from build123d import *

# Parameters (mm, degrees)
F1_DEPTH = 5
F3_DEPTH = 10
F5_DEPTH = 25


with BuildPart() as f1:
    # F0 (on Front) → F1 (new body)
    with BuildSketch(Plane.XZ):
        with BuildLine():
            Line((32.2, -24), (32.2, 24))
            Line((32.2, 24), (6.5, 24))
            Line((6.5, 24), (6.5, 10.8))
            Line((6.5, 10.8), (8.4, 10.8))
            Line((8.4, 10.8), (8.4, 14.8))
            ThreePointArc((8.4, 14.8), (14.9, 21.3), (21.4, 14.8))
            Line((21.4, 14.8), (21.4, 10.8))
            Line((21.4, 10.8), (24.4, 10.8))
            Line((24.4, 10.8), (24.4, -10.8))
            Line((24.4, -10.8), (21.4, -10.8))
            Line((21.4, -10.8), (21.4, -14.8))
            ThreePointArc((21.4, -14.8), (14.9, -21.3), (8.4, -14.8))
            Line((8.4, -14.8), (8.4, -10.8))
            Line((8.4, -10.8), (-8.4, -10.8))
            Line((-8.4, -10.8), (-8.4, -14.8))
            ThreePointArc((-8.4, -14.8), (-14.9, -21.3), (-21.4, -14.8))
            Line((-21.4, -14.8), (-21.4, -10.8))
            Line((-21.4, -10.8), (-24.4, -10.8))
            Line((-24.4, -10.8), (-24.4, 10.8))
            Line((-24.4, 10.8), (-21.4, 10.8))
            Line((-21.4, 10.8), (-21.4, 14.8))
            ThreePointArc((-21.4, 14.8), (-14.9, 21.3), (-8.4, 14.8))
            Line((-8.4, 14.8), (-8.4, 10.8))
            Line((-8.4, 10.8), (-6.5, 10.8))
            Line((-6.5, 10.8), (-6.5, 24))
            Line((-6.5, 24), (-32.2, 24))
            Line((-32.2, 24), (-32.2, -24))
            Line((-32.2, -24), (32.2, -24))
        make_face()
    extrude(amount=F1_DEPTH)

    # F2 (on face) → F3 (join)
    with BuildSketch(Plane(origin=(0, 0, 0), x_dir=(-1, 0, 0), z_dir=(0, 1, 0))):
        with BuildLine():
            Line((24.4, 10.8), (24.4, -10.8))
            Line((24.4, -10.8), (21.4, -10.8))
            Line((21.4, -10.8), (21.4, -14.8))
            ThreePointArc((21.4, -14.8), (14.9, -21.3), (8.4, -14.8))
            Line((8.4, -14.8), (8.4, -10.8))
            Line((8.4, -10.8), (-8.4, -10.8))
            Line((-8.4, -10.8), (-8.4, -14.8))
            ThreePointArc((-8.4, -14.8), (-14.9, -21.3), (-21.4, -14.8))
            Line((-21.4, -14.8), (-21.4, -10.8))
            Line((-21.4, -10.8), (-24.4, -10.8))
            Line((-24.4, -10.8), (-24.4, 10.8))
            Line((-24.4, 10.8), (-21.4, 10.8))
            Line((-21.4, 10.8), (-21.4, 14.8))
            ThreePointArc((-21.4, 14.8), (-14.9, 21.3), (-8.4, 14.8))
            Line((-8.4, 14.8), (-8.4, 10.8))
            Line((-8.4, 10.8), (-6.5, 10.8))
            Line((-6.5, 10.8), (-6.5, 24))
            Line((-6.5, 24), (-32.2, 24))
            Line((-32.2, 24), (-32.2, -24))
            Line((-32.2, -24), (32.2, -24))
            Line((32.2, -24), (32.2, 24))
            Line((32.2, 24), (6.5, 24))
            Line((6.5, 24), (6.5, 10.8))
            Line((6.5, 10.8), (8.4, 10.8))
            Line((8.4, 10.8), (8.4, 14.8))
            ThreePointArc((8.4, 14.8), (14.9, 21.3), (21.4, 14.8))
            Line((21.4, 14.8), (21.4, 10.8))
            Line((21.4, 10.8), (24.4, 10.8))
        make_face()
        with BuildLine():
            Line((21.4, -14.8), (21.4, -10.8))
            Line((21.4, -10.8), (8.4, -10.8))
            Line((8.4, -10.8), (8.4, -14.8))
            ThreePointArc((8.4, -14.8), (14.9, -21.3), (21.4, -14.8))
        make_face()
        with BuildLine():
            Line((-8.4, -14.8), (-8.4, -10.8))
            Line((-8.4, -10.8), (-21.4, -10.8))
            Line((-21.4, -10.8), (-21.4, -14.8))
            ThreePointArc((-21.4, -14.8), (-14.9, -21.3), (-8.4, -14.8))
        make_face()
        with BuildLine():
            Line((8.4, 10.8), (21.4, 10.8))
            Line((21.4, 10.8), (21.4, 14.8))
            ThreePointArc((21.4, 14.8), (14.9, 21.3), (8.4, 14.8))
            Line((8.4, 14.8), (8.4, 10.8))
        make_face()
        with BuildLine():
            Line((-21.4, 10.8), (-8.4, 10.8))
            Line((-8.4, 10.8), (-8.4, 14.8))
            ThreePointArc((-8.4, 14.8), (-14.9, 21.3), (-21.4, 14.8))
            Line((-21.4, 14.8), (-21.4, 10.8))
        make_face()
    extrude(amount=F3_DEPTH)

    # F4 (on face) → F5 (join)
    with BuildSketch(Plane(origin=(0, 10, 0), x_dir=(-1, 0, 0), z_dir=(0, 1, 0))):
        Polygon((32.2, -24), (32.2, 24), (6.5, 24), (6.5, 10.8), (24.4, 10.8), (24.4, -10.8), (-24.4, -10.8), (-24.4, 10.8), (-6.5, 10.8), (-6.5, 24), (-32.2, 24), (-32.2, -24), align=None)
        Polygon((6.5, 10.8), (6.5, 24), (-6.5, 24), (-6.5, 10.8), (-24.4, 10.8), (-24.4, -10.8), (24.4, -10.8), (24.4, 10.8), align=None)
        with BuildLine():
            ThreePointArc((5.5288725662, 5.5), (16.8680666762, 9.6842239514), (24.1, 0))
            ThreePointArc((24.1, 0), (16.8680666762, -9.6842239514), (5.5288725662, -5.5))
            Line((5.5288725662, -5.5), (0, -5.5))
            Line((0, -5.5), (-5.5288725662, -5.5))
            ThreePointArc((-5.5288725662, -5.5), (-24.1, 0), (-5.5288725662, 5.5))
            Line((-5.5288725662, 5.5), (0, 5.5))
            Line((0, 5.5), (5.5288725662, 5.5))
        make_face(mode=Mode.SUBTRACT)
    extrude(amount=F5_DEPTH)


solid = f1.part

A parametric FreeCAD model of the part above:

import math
import FreeCAD as App
import Part
import Sketcher

V = App.Vector


def add_polygon(sketch, points):
    """Adds a closed chain of lines whose ends are joined by coincident constraints."""
    first, n = sketch.GeometryCount, len(points)
    for a, b in zip(points, points[1:] + points[:1]):
        sketch.addGeometry(Part.LineSegment(App.Vector(*a, 0), App.Vector(*b, 0)), False)
    for i in range(n):
        sketch.addConstraint(Sketcher.Constraint("Coincident", first + i, 2, first + (i + 1) % n, 1))

doc = App.newDocument("Part")
body = doc.addObject("PartDesign::Body", "Body")

# Sketch on XZ plane
sketch1 = doc.addObject("Sketcher::SketchObject", "Sketch")
body.addObject(sketch1)
sketch1.AttachmentSupport = (doc.XZ_Plane, [""])
sketch1.MapMode = "FlatFace"
sketch1.addGeometry([
    Part.LineSegment(V(32.2, -24, 0), V(32.2, 24, 0)),  # 0
    Part.LineSegment(V(32.2, 24, 0), V(6.5, 24, 0)),  # 1
    Part.LineSegment(V(6.5, 24, 0), V(6.5, 10.8, 0)),  # 2
    Part.LineSegment(V(6.5, 10.8, 0), V(8.4, 10.8, 0)),  # 3
    Part.LineSegment(V(8.4, 10.8, 0), V(8.4, 14.8, 0)),  # 4
    Part.ArcOfCircle(Part.Circle(V(14.9, 14.8, 0), V(0, 0, 1), 6.5), math.radians(0), math.radians(180)),  # 5
    Part.LineSegment(V(21.4, 14.8, 0), V(21.4, 10.8, 0)),  # 6
    Part.LineSegment(V(21.4, 10.8, 0), V(24.4, 10.8, 0)),  # 7
    Part.LineSegment(V(24.4, 10.8, 0), V(24.4, -10.8, 0)),  # 8
    Part.LineSegment(V(24.4, -10.8, 0), V(21.4, -10.8, 0)),  # 9
    Part.LineSegment(V(21.4, -10.8, 0), V(21.4, -14.8, 0)),  # 10
    Part.ArcOfCircle(Part.Circle(V(14.9, -14.8, 0), V(0, 0, 1), 6.5), math.radians(180), math.radians(360)),  # 11
    Part.LineSegment(V(8.4, -14.8, 0), V(8.4, -10.8, 0)),  # 12
    Part.LineSegment(V(8.4, -10.8, 0), V(-8.4, -10.8, 0)),  # 13
    Part.LineSegment(V(-8.4, -10.8, 0), V(-8.4, -14.8, 0)),  # 14
    Part.ArcOfCircle(Part.Circle(V(-14.9, -14.8, 0), V(0, 0, 1), 6.5), math.radians(180), math.radians(360)),  # 15
    Part.LineSegment(V(-21.4, -14.8, 0), V(-21.4, -10.8, 0)),  # 16
    Part.LineSegment(V(-21.4, -10.8, 0), V(-24.4, -10.8, 0)),  # 17
    Part.LineSegment(V(-24.4, -10.8, 0), V(-24.4, 10.8, 0)),  # 18
    Part.LineSegment(V(-24.4, 10.8, 0), V(-21.4, 10.8, 0)),  # 19
    Part.LineSegment(V(-21.4, 10.8, 0), V(-21.4, 14.8, 0)),  # 20
    Part.ArcOfCircle(Part.Circle(V(-14.9, 14.8, 0), V(0, 0, 1), 6.5), math.radians(0), math.radians(180)),  # 21
    Part.LineSegment(V(-8.4, 14.8, 0), V(-8.4, 10.8, 0)),  # 22
    Part.LineSegment(V(-8.4, 10.8, 0), V(-6.5, 10.8, 0)),  # 23
    Part.LineSegment(V(-6.5, 10.8, 0), V(-6.5, 24, 0)),  # 24
    Part.LineSegment(V(-6.5, 24, 0), V(-32.2, 24, 0)),  # 25
    Part.LineSegment(V(-32.2, 24, 0), V(-32.2, -24, 0)),  # 26
    Part.LineSegment(V(-32.2, -24, 0), V(32.2, -24, 0)),  # 27
], False)
sketch1.addConstraint([
    Sketcher.Constraint("Coincident", 0, 2, 1, 1),
    Sketcher.Constraint("Coincident", 1, 2, 2, 1),
    Sketcher.Constraint("Coincident", 2, 2, 3, 1),
    Sketcher.Constraint("Coincident", 3, 2, 4, 1),
    Sketcher.Constraint("Tangent", 4, 2, 5, 2),
    Sketcher.Constraint("Tangent", 5, 1, 6, 1),
    Sketcher.Constraint("Coincident", 6, 2, 7, 1),
    Sketcher.Constraint("Coincident", 7, 2, 8, 1),
    Sketcher.Constraint("Coincident", 8, 2, 9, 1),
    Sketcher.Constraint("Coincident", 9, 2, 10, 1),
    Sketcher.Constraint("Tangent", 10, 2, 11, 2),
    Sketcher.Constraint("Tangent", 11, 1, 12, 1),
    Sketcher.Constraint("Coincident", 12, 2, 13, 1),
    Sketcher.Constraint("Coincident", 13, 2, 14, 1),
    Sketcher.Constraint("Tangent", 14, 2, 15, 2),
    Sketcher.Constraint("Tangent", 15, 1, 16, 1),
    Sketcher.Constraint("Coincident", 16, 2, 17, 1),
    Sketcher.Constraint("Coincident", 17, 2, 18, 1),
    Sketcher.Constraint("Coincident", 18, 2, 19, 1),
    Sketcher.Constraint("Coincident", 19, 2, 20, 1),
    Sketcher.Constraint("Tangent", 20, 2, 21, 2),
    Sketcher.Constraint("Tangent", 21, 1, 22, 1),
    Sketcher.Constraint("Coincident", 22, 2, 23, 1),
    Sketcher.Constraint("Coincident", 23, 2, 24, 1),
    Sketcher.Constraint("Coincident", 24, 2, 25, 1),
    Sketcher.Constraint("Coincident", 25, 2, 26, 1),
    Sketcher.Constraint("Coincident", 26, 2, 27, 1),
    Sketcher.Constraint("Coincident", 27, 2, 0, 1),
    Sketcher.Constraint("Vertical", 0),
    Sketcher.Constraint("Horizontal", 1),
    Sketcher.Constraint("Vertical", 2),
    Sketcher.Constraint("Horizontal", 3),
    Sketcher.Constraint("Vertical", 4),
    Sketcher.Constraint("Vertical", 6),
    Sketcher.Constraint("Horizontal", 7),
    Sketcher.Constraint("Vertical", 8),
    Sketcher.Constraint("Horizontal", 9),
    Sketcher.Constraint("Vertical", 10),
    Sketcher.Constraint("Vertical", 12),
    Sketcher.Constraint("Horizontal", 13),
    Sketcher.Constraint("Vertical", 14),
    Sketcher.Constraint("Vertical", 16),
    Sketcher.Constraint("Horizontal", 17),
    Sketcher.Constraint("Vertical", 18),
    Sketcher.Constraint("Horizontal", 19),
    Sketcher.Constraint("Vertical", 20),
    Sketcher.Constraint("Vertical", 22),
    Sketcher.Constraint("Horizontal", 23),
    Sketcher.Constraint("Vertical", 24),
    Sketcher.Constraint("Horizontal", 25),
    Sketcher.Constraint("Vertical", 26),
    Sketcher.Constraint("Horizontal", 27),
    Sketcher.Constraint("Equal", 5, 11),
    Sketcher.Constraint("Equal", 11, 15),
    Sketcher.Constraint("Equal", 15, 21),
    Sketcher.Constraint("Symmetric", 5, 3, 15, 3, -1, 1),
    Sketcher.Constraint("Symmetric", 11, 3, 21, 3, -1, 1),
    Sketcher.Constraint("Symmetric", 7, 2, 17, 2, -1, 1),
    Sketcher.Constraint("Symmetric", 0, 2, 26, 2, -1, 1),
    Sketcher.Constraint("Symmetric", 11, 3, 15, 3, -2),
    Sketcher.Constraint("Symmetric", 2, 2, 23, 2, -2),
    Sketcher.Constraint("Horizontal", 3, 2, 6, 2),
    Sketcher.Constraint("Horizontal", 9, 2, 12, 2),
    Sketcher.Constraint("Horizontal", 13, 2, 16, 2),
    Sketcher.Constraint("Horizontal", 7, 2, 18, 2),
    Sketcher.Constraint("Horizontal", 1, 2, 24, 2),
    Sketcher.Constraint("Radius", 5, 6.5),
    Sketcher.Constraint("DistanceX", 7, 1, 7, 2, 3.0),
    Sketcher.Constraint("DistanceY", 0, 1, 0, 2, 48.0),
    Sketcher.Constraint("DistanceY", 4, 1, 4, 2, 4.0),
    Sketcher.Constraint("DistanceX", 1, 2, 1, 1, 25.7),
    Sketcher.Constraint("DistanceX", 3, 1, 3, 2, 1.9),
    Sketcher.Constraint("DistanceX", 13, 2, 13, 1, 16.8),
    Sketcher.Constraint("DistanceY", 2, 2, 2, 1, 13.2),
])
pad1 = doc.addObject("PartDesign::Pad", "Pad")
body.addObject(pad1)
pad1.Profile = sketch1
pad1.Length = 5

# Sketch on XZ plane
sketch2 = doc.addObject("Sketcher::SketchObject", "Sketch001")
body.addObject(sketch2)
sketch2.AttachmentSupport = (doc.XZ_Plane, [""])
sketch2.MapMode = "FlatFace"
add_polygon(sketch2, [(-24.4, 10.8), (-24.4, -10.8), (24.4, -10.8), (24.4, 10.8), (6.5, 10.8), (6.5, 24), (32.2, 24), (32.2, -24), (-32.2, -24), (-32.2, 24), (-6.5, 24), (-6.5, 10.8)])  # lines 0-11
sketch2.addConstraint([
    Sketcher.Constraint("Vertical", 0),
    Sketcher.Constraint("Horizontal", 1),
    Sketcher.Constraint("Vertical", 2),
    Sketcher.Constraint("Horizontal", 3),
    Sketcher.Constraint("Vertical", 4),
    Sketcher.Constraint("Horizontal", 5),
    Sketcher.Constraint("Vertical", 6),
    Sketcher.Constraint("Horizontal", 7),
    Sketcher.Constraint("Vertical", 8),
    Sketcher.Constraint("Horizontal", 9),
    Sketcher.Constraint("Vertical", 10),
    Sketcher.Constraint("Horizontal", 11),
    Sketcher.Constraint("Symmetric", 0, 2, 2, 2, -1, 1),
    Sketcher.Constraint("Symmetric", 5, 2, 7, 2, -1, 1),
    Sketcher.Constraint("Symmetric", 4, 2, 9, 2, -2),
    Sketcher.Constraint("Horizontal", 3, 2, 10, 2),
    Sketcher.Constraint("DistanceY", 6, 2, 6, 1, 48.0),
    Sketcher.Constraint("DistanceX", 1, 1, 1, 2, 48.8),
    Sketcher.Constraint("DistanceX", 3, 2, 3, 1, 17.9),
    Sketcher.Constraint("DistanceX", 5, 1, 5, 2, 25.7),
    Sketcher.Constraint("DistanceY", 0, 2, 0, 1, 21.6),
])
pad2 = doc.addObject("PartDesign::Pad", "Pad001")
body.addObject(pad2)
pad2.Profile = sketch2
pad2.Length = 10
pad2.Reversed = True

# Sketch on XZ plane
sketch3 = doc.addObject("Sketcher::SketchObject", "Sketch002")
body.addObject(sketch3)
sketch3.AttachmentSupport = (doc.XZ_Plane, [""])
sketch3.MapMode = "FlatFace"
sketch3.AttachmentOffset = App.Placement(V(0, 0, -10), App.Rotation())
add_polygon(sketch3, [(-32.2, -24), (-32.2, 24), (32.2, 24), (32.2, -24)])  # lines 0-3
sketch3.addGeometry(Part.LineSegment(V(5.528873, 5.5, 0), V(-5.528873, 5.5, 0)), False)  # 4
sketch3.addGeometry(Part.ArcOfCircle(Part.Circle(V(-14, 0, 0), V(0, 0, 1), 10.1), math.radians(32.994222), math.radians(180)), False)  # 5
sketch3.addGeometry(Part.ArcOfCircle(Part.Circle(V(-14, 0, 0), V(0, 0, 1), 10.1), math.radians(180), math.radians(327.005778)), False)  # 6
sketch3.addGeometry(Part.LineSegment(V(-5.528873, -5.5, 0), V(5.528873, -5.5, 0)), False)  # 7
sketch3.addGeometry(Part.ArcOfCircle(Part.Circle(V(14, 0, 0), V(0, 0, 1), 10.1), math.radians(-147.005778), math.radians(147.005778)), False)  # 8
sketch3.addConstraint([
    Sketcher.Constraint("Coincident", 4, 2, 5, 1),
    Sketcher.Constraint("Tangent", 5, 2, 6, 1),
    Sketcher.Constraint("Coincident", 6, 2, 7, 1),
    Sketcher.Constraint("Coincident", 7, 2, 8, 1),
    Sketcher.Constraint("Coincident", 8, 2, 4, 1),
    Sketcher.Constraint("Vertical", 0),
    Sketcher.Constraint("Horizontal", 1),
    Sketcher.Constraint("Vertical", 2),
    Sketcher.Constraint("Horizontal", 3),
    Sketcher.Constraint("Horizontal", 4),
    Sketcher.Constraint("Horizontal", 7),
    Sketcher.Constraint("Equal", 5, 6),
    Sketcher.Constraint("Equal", 6, 8),
    Sketcher.Constraint("Symmetric", 5, 3, 8, 3, -1, 1),
    Sketcher.Constraint("Symmetric", 0, 2, 2, 2, -1, 1),
    Sketcher.Constraint("Symmetric", 4, 2, 6, 2, -1),
    Sketcher.Constraint("PointOnObject", 5, 2, -1),
    Sketcher.Constraint("Radius", 5, 10.1),
    Sketcher.Constraint("DistanceY", 0, 1, 0, 2, 48.0),
    Sketcher.Constraint("DistanceX", 1, 1, 1, 2, 64.4),
    Sketcher.Constraint("DistanceX", 5, 3, -1, 1, 14.0),
    Sketcher.Constraint("DistanceY", 6, 2, 4, 2, 11.0),
])
pad3 = doc.addObject("PartDesign::Pad", "Pad002")
body.addObject(pad3)
pad3.Profile = sketch3
pad3.Length = 25
pad3.Reversed = True

doc.recompute()
